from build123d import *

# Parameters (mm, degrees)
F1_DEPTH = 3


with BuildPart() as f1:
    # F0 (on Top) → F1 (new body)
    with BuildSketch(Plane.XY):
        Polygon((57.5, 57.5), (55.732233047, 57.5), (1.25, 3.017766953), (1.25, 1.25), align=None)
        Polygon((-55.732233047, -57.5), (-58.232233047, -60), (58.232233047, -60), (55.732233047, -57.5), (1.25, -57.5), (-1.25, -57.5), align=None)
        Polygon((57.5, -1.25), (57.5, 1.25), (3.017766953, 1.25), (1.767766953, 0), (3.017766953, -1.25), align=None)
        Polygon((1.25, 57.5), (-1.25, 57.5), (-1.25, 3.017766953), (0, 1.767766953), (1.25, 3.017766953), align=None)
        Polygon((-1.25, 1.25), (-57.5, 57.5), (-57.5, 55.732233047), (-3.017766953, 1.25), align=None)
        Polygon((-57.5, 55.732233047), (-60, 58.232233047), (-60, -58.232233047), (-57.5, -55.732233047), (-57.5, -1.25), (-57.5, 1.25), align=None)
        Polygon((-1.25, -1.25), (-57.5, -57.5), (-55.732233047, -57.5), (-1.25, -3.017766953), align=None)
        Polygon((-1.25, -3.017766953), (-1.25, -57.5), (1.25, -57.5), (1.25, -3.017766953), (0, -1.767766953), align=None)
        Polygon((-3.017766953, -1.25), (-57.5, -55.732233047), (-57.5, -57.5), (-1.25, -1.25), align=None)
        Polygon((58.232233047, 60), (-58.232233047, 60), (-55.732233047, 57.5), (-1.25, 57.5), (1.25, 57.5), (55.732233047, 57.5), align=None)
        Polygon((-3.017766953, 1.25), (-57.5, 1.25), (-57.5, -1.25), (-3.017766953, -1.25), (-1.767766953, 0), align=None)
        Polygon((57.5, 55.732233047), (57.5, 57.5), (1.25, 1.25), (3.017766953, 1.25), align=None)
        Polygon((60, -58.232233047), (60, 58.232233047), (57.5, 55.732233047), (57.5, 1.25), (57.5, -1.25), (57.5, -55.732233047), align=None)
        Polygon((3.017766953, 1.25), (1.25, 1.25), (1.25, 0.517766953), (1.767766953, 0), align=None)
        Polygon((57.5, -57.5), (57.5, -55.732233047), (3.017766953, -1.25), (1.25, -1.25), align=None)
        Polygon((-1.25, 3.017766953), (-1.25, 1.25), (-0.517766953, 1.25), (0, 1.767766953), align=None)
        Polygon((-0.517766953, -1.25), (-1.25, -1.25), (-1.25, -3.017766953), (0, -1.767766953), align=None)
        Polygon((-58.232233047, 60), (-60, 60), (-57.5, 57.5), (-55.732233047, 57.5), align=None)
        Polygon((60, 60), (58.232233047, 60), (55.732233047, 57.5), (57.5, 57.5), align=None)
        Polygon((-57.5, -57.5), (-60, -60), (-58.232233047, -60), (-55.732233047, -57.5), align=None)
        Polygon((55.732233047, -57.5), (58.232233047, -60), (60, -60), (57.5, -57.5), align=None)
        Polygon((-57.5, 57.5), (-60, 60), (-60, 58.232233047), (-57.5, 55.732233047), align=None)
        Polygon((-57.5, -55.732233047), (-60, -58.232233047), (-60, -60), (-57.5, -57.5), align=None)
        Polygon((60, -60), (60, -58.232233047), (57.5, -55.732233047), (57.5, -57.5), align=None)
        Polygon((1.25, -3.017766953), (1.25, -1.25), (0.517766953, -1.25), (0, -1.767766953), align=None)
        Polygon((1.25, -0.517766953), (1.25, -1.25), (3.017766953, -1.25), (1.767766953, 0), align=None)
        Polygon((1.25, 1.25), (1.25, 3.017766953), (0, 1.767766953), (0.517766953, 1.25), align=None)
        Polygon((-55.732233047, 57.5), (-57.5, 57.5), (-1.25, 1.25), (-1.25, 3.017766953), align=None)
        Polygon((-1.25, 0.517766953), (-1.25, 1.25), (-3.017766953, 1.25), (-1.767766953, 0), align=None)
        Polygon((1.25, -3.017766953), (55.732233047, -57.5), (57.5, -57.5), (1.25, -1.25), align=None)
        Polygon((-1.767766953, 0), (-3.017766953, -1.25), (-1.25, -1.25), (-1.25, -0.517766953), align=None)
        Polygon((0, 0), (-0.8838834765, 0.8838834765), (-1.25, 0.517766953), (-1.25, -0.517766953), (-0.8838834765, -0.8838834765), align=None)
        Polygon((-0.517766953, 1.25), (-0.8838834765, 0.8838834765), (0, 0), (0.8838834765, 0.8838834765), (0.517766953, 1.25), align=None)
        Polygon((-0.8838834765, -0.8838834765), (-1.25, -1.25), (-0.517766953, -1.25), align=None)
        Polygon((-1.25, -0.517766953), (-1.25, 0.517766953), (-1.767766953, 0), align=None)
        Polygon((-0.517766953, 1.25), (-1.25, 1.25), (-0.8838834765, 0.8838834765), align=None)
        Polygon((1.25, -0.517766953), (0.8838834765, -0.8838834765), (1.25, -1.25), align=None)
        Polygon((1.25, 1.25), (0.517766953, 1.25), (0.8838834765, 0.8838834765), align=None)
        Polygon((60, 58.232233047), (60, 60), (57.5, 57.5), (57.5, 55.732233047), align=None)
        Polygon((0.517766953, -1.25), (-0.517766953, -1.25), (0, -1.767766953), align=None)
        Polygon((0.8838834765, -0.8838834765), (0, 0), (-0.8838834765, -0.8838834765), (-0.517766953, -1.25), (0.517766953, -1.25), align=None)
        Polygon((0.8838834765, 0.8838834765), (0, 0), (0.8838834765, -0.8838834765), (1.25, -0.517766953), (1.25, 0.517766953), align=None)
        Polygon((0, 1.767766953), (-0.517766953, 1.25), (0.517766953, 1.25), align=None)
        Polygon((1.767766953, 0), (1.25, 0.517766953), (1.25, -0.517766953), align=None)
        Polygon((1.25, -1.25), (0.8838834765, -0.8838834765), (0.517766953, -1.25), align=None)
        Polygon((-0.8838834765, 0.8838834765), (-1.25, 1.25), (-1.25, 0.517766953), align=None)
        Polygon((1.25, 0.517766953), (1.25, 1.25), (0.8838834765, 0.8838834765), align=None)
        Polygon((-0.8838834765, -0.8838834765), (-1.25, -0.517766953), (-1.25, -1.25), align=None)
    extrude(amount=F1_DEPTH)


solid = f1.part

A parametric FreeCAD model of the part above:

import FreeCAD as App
import Part
import Sketcher

V = App.Vector
Q = App.Units.Quantity


def add_polygon(sketch, points):
    """Adds a closed chain of lines whose ends are joined by coincident constraints."""
    first, n = sketch.GeometryCount, len(points)
    for a, b in zip(points, points[1:] + points[:1]):
        sketch.addGeometry(Part.LineSegment(App.Vector(*a, 0), App.Vector(*b, 0)), False)
    for i in range(n):
        sketch.addConstraint(Sketcher.Constraint("Coincident", first + i, 2, first + (i + 1) % n, 1))

doc = App.newDocument("Part")
params = doc.addObject("Spreadsheet::Sheet", "Params")
for row, (alias, value) in enumerate([
    ("sketch1_width", "120 mm"),
    ("pad1_length", "3 mm"),
], start=1):
    params.set(f"A{row}", alias)
    params.set(f"B{row}", "=" + value)
    params.setAlias(f"B{row}", alias)

body = doc.addObject("PartDesign::Body", "Body")

# Sketch on XY plane
sketch1 = body.newObject("Sketcher::SketchObject", "Sketch")
sketch1.AttachmentSupport = (doc.getObject("XY_Plane"), [""])
sketch1.MapMode = "FlatFace"
add_polygon(sketch1, [(60, -60), (60, 60), (-60, 60), (-60, -60)])  # lines 0-3
add_polygon(sketch1, [(-1, -3), (-1, -58), (-56, -58)])  # lines 4-6
add_polygon(sketch1, [(-58, -1), (-3, -1), (-58, -56)])  # lines 7-9
add_polygon(sketch1, [(1, -58), (1, -3), (56, -58)])  # lines 10-12
add_polygon(sketch1, [(58, -56), (3, -1), (58, -1)])  # lines 13-15
add_polygon(sketch1, [(-58, 56), (-3, 1), (-58, 1)])  # lines 16-18
add_polygon(sketch1, [(-1, 58), (-1, 3), (-56, 58)])  # lines 19-21
add_polygon(sketch1, [(3, 1), (58, 56), (58, 1)])  # lines 22-24
add_polygon(sketch1, [(56, 58), (1, 3), (1, 58)])  # lines 25-27
sketch1.addConstraint([
    Sketcher.Constraint("Vertical", 0),
    Sketcher.Constraint("Horizontal", 1),
    Sketcher.Constraint("Vertical", 2),
    Sketcher.Constraint("Horizontal", 3),
    Sketcher.Constraint("Vertical", 4),
    Sketcher.Constraint("Horizontal", 5),
    Sketcher.Constraint("Horizontal", 7),
    Sketcher.Constraint("Vertical", 9),
    Sketcher.Constraint("Vertical", 10),
    Sketcher.Constraint("Horizontal", 12),
    Sketcher.Constraint("Horizontal", 14),
    Sketcher.Constraint("Vertical", 15),
    Sketcher.Constraint("Horizontal", 17),
    Sketcher.Constraint("Vertical", 18),
    Sketcher.Constraint("Vertical", 19),
    Sketcher.Constraint("Horizontal", 21),
    Sketcher.Constraint("Vertical", 23),
    Sketcher.Constraint("Horizontal", 24),
    Sketcher.Constraint("Vertical", 26),
    Sketcher.Constraint("Horizontal", 27),
    Sketcher.Constraint("Symmetric", 0, 2, 2, 2, -1, 1),
    Sketcher.Constraint("Symmetric", 13, 2, 16, 2, -1, 1),
    Sketcher.Constraint("Symmetric", 15, 2, 18, 2, -1, 1),
    Sketcher.Constraint("Symmetric", 10, 2, 19, 2, -1, 1),
    Sketcher.Constraint("Symmetric", 11, 2, 20, 2, -1, 1),
    Sketcher.Constraint("Symmetric", 8, 2, 22, 2, -1, 1),
    Sketcher.Constraint("Symmetric", 7, 2, 24, 2, -1, 1),
    Sketcher.Constraint("Symmetric", 6, 2, 25, 2, -1, 1),
    Sketcher.Constraint("Symmetric", 5, 2, 27, 2, -1, 1),
    Sketcher.Constraint("Symmetric", 6, 2, 10, 2, -2),
    Sketcher.Constraint("Symmetric", 5, 2, 11, 2, -2),
    Sketcher.Constraint("Symmetric", 7, 2, 13, 2, -2),
    Sketcher.Constraint("Symmetric", 8, 2, 15, 2, -2),
    Sketcher.Constraint("Parallel", 6, 8),
    Sketcher.Constraint("Perpendicular", 8, 11),
    Sketcher.Constraint("Equal", 5, 7),
    Sketcher.Constraint("Equal", 3, 0),
    Sketcher.Constraint("DistanceX", 1, 2, 1, 1, Q("120 mm")),
    Sketcher.Constraint("DistanceY", 4, 2, -1, 1, Q("57.5 mm")),
    Sketcher.Constraint("DistanceX", 8, 2, -1, 1, Q("57.5 mm")),
    Sketcher.Constraint("DistanceX", 6, 2, 10, 2, Q("2.5 mm")),
    Sketcher.Constraint("DistanceY", 7, 2, 16, 2, Q("2.5 mm")),
    Sketcher.Constraint("DistanceX", 5, 2, 5, 1, Q("54.482233 mm")),
])
sketch1.setExpression("Constraints[65]", "Params.sketch1_width")
pad1 = body.newObject("PartDesign::Pad", "Pad")
pad1.Profile = sketch1
pad1.setExpression("Length", "Params.pad1_length")

doc.recompute()
